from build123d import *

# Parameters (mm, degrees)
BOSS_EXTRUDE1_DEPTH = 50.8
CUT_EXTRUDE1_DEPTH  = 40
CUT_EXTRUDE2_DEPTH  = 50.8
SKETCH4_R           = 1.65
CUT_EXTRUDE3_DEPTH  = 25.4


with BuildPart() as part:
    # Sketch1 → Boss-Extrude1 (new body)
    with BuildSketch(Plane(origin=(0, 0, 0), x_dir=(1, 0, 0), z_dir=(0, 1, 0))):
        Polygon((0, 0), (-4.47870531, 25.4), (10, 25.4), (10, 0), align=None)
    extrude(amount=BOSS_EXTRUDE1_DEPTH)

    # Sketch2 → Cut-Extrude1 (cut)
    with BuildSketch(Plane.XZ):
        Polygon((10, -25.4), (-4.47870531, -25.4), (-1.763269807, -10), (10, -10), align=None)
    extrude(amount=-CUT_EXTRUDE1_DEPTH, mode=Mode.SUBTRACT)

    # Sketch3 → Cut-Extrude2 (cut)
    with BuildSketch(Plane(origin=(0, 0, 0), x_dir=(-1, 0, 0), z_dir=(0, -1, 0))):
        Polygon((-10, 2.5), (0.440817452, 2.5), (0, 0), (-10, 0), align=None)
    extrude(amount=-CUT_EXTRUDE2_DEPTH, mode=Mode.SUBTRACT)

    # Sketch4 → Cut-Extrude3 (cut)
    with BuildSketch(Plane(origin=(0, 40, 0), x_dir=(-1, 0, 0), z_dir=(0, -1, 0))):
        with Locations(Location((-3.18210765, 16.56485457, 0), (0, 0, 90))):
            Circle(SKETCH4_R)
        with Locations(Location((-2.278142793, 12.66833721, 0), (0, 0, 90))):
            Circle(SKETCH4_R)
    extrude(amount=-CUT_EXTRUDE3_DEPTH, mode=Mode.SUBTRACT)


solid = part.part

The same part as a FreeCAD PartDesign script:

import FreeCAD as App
import Part
import Sketcher

V = App.Vector
Q = App.Units.Quantity

doc = App.newDocument("Part")
body = doc.addObject("PartDesign::Body", "Body")

# Sketch on XZ plane
sketch1 = doc.addObject("Sketcher::SketchObject", "Sketch")
body.addObject(sketch1)
sketch1.AttachmentSupport = (doc.XZ_Plane, [""])
sketch1.MapMode = "FlatFace"
sketch1.addGeometry(Part.LineSegment(V(-4, -25, 0), V(0, 0, 0)), False)
sketch1.addGeometry(Part.LineSegment(V(0, 0, 0), V(10, 0, 0)), False)
sketch1.addGeometry(Part.LineSegment(V(10, 0, 0), V(10, -25, 0)), False)
sketch1.addGeometry(Part.LineSegment(V(10, -25, 0), V(-4, -25, 0)), False)
sketch1.addConstraint(Sketcher.Constraint("Coincident", 0, 2, 1, 1))
sketch1.addConstraint(Sketcher.Constraint("Coincident", 1, 2, 2, 1))
sketch1.addConstraint(Sketcher.Constraint("Coincident", 2, 2, 3, 1))
sketch1.addConstraint(Sketcher.Constraint("Coincident", 3, 2, 0, 1))
sketch1.addConstraint(Sketcher.Constraint("Horizontal", 1))
sketch1.addConstraint(Sketcher.Constraint("Vertical", 2))
sketch1.addConstraint(Sketcher.Constraint("Horizontal", 3))
sketch1.addConstraint(Sketcher.Constraint("Coincident", 0, 2, -1, 1))
sketch1.addConstraint(Sketcher.Constraint("DistanceX", 1, 1, 1, 2, Q("10 mm")))
sketch1.addConstraint(Sketcher.Constraint("Angle", 0, Q("80 deg")))
sketch1.addConstraint(Sketcher.Constraint("DistanceY", 2, 2, 2, 1, Q("25.4 mm")))
pad1 = doc.addObject("PartDesign::Pad", "Pad")
body.addObject(pad1)
pad1.Profile = sketch1
pad1.Length = 50.8
pad1.Reversed = True

# Sketch on XZ plane
sketch2 = doc.addObject("Sketcher::SketchObject", "Sketch001")
body.addObject(sketch2)
sketch2.AttachmentSupport = (doc.XZ_Plane, [""])
sketch2.MapMode = "FlatFace"
sketch2.addGeometry(Part.LineSegment(V(-4, -25, 0), V(10, -25, 0)), False)
sketch2.addGeometry(Part.LineSegment(V(10, -25, 0), V(10, -10, 0)), False)
sketch2.addGeometry(Part.LineSegment(V(10, -10, 0), V(-2, -10, 0)), False)
sketch2.addGeometry(Part.LineSegment(V(-2, -10, 0), V(-4, -25, 0)), False)
sketch2.addConstraint(Sketcher.Constraint("Coincident", 0, 2, 1, 1))
sketch2.addConstraint(Sketcher.Constraint("Coincident", 1, 2, 2, 1))
sketch2.addConstraint(Sketcher.Constraint("Coincident", 2, 2, 3, 1))
sketch2.addConstraint(Sketcher.Constraint("Coincident", 3, 2, 0, 1))
sketch2.addConstraint(Sketcher.Constraint("Horizontal", 0))
sketch2.addConstraint(Sketcher.Constraint("Vertical", 1))
sketch2.addConstraint(Sketcher.Constraint("Horizontal", 2))
sketch2.addConstraint(Sketcher.Constraint("Angle", 3, Q("-100 deg")))
sketch2.addConstraint(Sketcher.Constraint("DistanceY", 1, 1, 1, 2, Q("15.4 mm")))
sketch2.addConstraint(Sketcher.Constraint("DistanceX", -1, 1, 0, 2, Q("10 mm")))
sketch2.addConstraint(Sketcher.Constraint("DistanceY", 1, 2, -1, 1, Q("10 mm")))
sketch2.addConstraint(Sketcher.Constraint("DistanceX", 2, 2, 2, 1, Q("11.76327 mm")))
pocket1 = doc.addObject("PartDesign::Pocket", "Pocket")
body.addObject(pocket1)
pocket1.Profile = sketch2
pocket1.Length = 40

# Sketch on XZ plane
sketch3 = doc.addObject("Sketcher::SketchObject", "Sketch002")
body.addObject(sketch3)
sketch3.AttachmentSupport = (doc.XZ_Plane, [""])
sketch3.MapMode = "FlatFace"
sketch3.addGeometry(Part.LineSegment(V(-0.4, -2.5, 0), V(10, -2.5, 0)), False)
sketch3.addGeometry(Part.LineSegment(V(10, -2.5, 0), V(10, 0, 0)), False)
sketch3.addGeometry(Part.LineSegment(V(10, 0, 0), V(0, 0, 0)), False)
sketch3.addGeometry(Part.LineSegment(V(0, 0, 0), V(-0.4, -2.5, 0)), False)
sketch3.addConstraint(Sketcher.Constraint("Coincident", 0, 2, 1, 1))
sketch3.addConstraint(Sketcher.Constraint("Coincident", 1, 2, 2, 1))
sketch3.addConstraint(Sketcher.Constraint("Coincident", 2, 2, 3, 1))
sketch3.addConstraint(Sketcher.Constraint("Coincident", 3, 2, 0, 1))
sketch3.addConstraint(Sketcher.Constraint("Horizontal", 0))
sketch3.addConstraint(Sketcher.Constraint("Vertical", 1))
sketch3.addConstraint(Sketcher.Constraint("Horizontal", 2))
sketch3.addConstraint(Sketcher.Constraint("Coincident", 2, 2, -1, 1))
sketch3.addConstraint(Sketcher.Constraint("DistanceX", 2, 2, 2, 1, Q("10 mm")))
sketch3.addConstraint(Sketcher.Constraint("Angle", 3, Q("-100 deg")))
sketch3.addConstraint(Sketcher.Constraint("DistanceY", 1, 1, 1, 2, Q("2.5 mm")))
pocket2 = doc.addObject("PartDesign::Pocket", "Pocket001")
body.addObject(pocket2)
pocket2.Profile = sketch3
pocket2.Length = 50.8

# Sketch on XZ plane
sketch4 = doc.addObject("Sketcher::SketchObject", "Sketch003")
body.addObject(sketch4)
sketch4.AttachmentSupport = (doc.XZ_Plane, [""])
sketch4.MapMode = "FlatFace"
sketch4.AttachmentOffset = App.Placement(V(0, 0, -40), App.Rotation())
sketch4.addGeometry(Part.Circle(V(3.2, -16.6, 0), V(0, 0, 1), 1.6), False)
sketch4.addGeometry(Part.Circle(V(2.3, -12.7, 0), V(0, 0, 1), 1.6), False)
sketch4.addConstraint(Sketcher.Constraint("Equal", 0, 1))
sketch4.addConstraint(Sketcher.Constraint("Diameter", 0, Q("3.3 mm")))
sketch4.addConstraint(Sketcher.Constraint("DistanceX", -1, 1, 0, 3, Q("3.182108 mm")))
sketch4.addConstraint(Sketcher.Constraint("DistanceY", 0, 3, -1, 1, Q("16.564855 mm")))
sketch4.addConstraint(Sketcher.Constraint("DistanceX", -1, 1, 1, 3, Q("2.278143 mm")))
sketch4.addConstraint(Sketcher.Constraint("DistanceY", 1, 3, -1, 1, Q("12.668337 mm")))
pocket3 = doc.addObject("PartDesign::Pocket", "Pocket002")
body.addObject(pocket3)
pocket3.Profile = sketch4
pocket3.Length = 25.4

doc.recompute()
